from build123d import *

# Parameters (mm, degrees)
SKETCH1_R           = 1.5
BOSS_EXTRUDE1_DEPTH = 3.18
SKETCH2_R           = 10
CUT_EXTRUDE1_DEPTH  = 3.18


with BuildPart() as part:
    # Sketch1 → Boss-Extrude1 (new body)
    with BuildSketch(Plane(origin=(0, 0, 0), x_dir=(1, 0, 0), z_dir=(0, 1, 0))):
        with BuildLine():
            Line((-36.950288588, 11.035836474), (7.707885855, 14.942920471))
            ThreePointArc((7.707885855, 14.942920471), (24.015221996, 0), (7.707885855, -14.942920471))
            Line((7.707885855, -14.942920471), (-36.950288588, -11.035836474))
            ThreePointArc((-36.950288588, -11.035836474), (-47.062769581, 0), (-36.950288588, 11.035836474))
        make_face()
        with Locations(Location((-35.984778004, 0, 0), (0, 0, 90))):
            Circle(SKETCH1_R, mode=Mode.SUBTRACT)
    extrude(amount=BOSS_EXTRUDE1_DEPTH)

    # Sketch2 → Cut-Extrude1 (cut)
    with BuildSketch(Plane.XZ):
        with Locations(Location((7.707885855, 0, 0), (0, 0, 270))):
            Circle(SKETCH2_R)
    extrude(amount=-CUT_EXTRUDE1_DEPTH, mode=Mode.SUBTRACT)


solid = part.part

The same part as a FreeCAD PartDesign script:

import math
import FreeCAD as App
import Part
import Sketcher
from FreeCAD import Vector
Q = App.Units.Quantity

doc = App.newDocument("Part")
params = doc.addObject("Spreadsheet::Sheet", "Params")
for row, (alias, value) in enumerate([
    ("sketch1_diameter", "3 mm"),
    ("sketch1_radius", "15 mm"),
    ("pad1_length", "3.18 mm"),
    ("sketch2_diameter", "20 mm"),
    ("pocket1_length", "3.18 mm"),
], start=1):
    params.set(f"A{row}", alias)
    params.set(f"B{row}", "=" + value)
    params.setAlias(f"B{row}", alias)

body = doc.addObject("PartDesign::Body", "Body")

# Sketch on XZ plane
sketch1 = body.newObject("Sketcher::SketchObject", "Sketch")
sketch1.AttachmentSupport = (doc.getObject("XZ_Plane"), [""])
sketch1.MapMode = "FlatFace"
sketch1.addGeometry(Part.LineSegment(Vector(7.7, -14.9, 0), Vector(-37, -11, 0)), False)
sketch1.addGeometry(Part.ArcOfCircle(Part.Circle(Vector(-36, 0, 0), Vector(0, 0, 1), 11.1), math.radians(95), math.radians(265)), False)
sketch1.addGeometry(Part.LineSegment(Vector(-37, 11, 0), Vector(7.7, 14.9, 0)), False)
sketch1.addGeometry(Part.ArcOfCircle(Part.Circle(Vector(9, 0, 0), Vector(0, 0, 1), 15), math.radians(-95), math.radians(95)), False)
sketch1.addGeometry(Part.Circle(Vector(-36, 0, 0), Vector(0, 0, 1), 1.5), False)
sketch1.addConstraint(Sketcher.Constraint("Tangent", 0, 2, 1, 2))
sketch1.addConstraint(Sketcher.Constraint("Tangent", 1, 1, 2, 1))
sketch1.addConstraint(Sketcher.Constraint("Tangent", 2, 2, 3, 2))
sketch1.addConstraint(Sketcher.Constraint("Tangent", 3, 1, 0, 1))
sketch1.addConstraint(Sketcher.Constraint("Coincident", 4, 3, 1, 3))
sketch1.addConstraint(Sketcher.Constraint("Symmetric", 0, 2, 1, 1, -1))
sketch1.addConstraint(Sketcher.Constraint("Diameter", 4, Q("3 mm")))
sketch1.addConstraint(Sketcher.Constraint("Radius", 3, Q("15 mm")))
sketch1.addConstraint(Sketcher.Constraint("Angle", 0, Q("175 deg")))
sketch1.addConstraint(Sketcher.Constraint("DistanceX", 1, 3, 3, 3, Q("45 mm")))
sketch1.addConstraint(Sketcher.Constraint("DistanceX", 1, 3, -1, 1, Q("35.984778 mm")))
sketch1.setExpression("Constraints[6]", "Params.sketch1_diameter")
sketch1.setExpression("Constraints[7]", "Params.sketch1_radius")
pad1 = body.newObject("PartDesign::Pad", "Pad")
pad1.Profile = sketch1
pad1.setExpression("Length", "Params.pad1_length")
pad1.Reversed = True

# Sketch on XZ plane
sketch2 = body.newObject("Sketcher::SketchObject", "Sketch001")
sketch2.AttachmentSupport = (doc.getObject("XZ_Plane"), [""])
sketch2.MapMode = "FlatFace"
sketch2.addGeometry(Part.Circle(Vector(8, 0, 0), Vector(0, 0, 1), 10), False)
sketch2.addConstraint(Sketcher.Constraint("PointOnObject", 0, 3, -1))
sketch2.addConstraint(Sketcher.Constraint("Diameter", 0, Q("20 mm")))
sketch2.addConstraint(Sketcher.Constraint("DistanceX", -1, 1, 0, 3, Q("7.707886 mm")))
sketch2.setExpression("Constraints[1]", "Params.sketch2_diameter")
pocket1 = body.newObject("PartDesign::Pocket", "Pocket")
pocket1.Profile = sketch2
pocket1.setExpression("Length", "Params.pocket1_length")

doc.recompute()
